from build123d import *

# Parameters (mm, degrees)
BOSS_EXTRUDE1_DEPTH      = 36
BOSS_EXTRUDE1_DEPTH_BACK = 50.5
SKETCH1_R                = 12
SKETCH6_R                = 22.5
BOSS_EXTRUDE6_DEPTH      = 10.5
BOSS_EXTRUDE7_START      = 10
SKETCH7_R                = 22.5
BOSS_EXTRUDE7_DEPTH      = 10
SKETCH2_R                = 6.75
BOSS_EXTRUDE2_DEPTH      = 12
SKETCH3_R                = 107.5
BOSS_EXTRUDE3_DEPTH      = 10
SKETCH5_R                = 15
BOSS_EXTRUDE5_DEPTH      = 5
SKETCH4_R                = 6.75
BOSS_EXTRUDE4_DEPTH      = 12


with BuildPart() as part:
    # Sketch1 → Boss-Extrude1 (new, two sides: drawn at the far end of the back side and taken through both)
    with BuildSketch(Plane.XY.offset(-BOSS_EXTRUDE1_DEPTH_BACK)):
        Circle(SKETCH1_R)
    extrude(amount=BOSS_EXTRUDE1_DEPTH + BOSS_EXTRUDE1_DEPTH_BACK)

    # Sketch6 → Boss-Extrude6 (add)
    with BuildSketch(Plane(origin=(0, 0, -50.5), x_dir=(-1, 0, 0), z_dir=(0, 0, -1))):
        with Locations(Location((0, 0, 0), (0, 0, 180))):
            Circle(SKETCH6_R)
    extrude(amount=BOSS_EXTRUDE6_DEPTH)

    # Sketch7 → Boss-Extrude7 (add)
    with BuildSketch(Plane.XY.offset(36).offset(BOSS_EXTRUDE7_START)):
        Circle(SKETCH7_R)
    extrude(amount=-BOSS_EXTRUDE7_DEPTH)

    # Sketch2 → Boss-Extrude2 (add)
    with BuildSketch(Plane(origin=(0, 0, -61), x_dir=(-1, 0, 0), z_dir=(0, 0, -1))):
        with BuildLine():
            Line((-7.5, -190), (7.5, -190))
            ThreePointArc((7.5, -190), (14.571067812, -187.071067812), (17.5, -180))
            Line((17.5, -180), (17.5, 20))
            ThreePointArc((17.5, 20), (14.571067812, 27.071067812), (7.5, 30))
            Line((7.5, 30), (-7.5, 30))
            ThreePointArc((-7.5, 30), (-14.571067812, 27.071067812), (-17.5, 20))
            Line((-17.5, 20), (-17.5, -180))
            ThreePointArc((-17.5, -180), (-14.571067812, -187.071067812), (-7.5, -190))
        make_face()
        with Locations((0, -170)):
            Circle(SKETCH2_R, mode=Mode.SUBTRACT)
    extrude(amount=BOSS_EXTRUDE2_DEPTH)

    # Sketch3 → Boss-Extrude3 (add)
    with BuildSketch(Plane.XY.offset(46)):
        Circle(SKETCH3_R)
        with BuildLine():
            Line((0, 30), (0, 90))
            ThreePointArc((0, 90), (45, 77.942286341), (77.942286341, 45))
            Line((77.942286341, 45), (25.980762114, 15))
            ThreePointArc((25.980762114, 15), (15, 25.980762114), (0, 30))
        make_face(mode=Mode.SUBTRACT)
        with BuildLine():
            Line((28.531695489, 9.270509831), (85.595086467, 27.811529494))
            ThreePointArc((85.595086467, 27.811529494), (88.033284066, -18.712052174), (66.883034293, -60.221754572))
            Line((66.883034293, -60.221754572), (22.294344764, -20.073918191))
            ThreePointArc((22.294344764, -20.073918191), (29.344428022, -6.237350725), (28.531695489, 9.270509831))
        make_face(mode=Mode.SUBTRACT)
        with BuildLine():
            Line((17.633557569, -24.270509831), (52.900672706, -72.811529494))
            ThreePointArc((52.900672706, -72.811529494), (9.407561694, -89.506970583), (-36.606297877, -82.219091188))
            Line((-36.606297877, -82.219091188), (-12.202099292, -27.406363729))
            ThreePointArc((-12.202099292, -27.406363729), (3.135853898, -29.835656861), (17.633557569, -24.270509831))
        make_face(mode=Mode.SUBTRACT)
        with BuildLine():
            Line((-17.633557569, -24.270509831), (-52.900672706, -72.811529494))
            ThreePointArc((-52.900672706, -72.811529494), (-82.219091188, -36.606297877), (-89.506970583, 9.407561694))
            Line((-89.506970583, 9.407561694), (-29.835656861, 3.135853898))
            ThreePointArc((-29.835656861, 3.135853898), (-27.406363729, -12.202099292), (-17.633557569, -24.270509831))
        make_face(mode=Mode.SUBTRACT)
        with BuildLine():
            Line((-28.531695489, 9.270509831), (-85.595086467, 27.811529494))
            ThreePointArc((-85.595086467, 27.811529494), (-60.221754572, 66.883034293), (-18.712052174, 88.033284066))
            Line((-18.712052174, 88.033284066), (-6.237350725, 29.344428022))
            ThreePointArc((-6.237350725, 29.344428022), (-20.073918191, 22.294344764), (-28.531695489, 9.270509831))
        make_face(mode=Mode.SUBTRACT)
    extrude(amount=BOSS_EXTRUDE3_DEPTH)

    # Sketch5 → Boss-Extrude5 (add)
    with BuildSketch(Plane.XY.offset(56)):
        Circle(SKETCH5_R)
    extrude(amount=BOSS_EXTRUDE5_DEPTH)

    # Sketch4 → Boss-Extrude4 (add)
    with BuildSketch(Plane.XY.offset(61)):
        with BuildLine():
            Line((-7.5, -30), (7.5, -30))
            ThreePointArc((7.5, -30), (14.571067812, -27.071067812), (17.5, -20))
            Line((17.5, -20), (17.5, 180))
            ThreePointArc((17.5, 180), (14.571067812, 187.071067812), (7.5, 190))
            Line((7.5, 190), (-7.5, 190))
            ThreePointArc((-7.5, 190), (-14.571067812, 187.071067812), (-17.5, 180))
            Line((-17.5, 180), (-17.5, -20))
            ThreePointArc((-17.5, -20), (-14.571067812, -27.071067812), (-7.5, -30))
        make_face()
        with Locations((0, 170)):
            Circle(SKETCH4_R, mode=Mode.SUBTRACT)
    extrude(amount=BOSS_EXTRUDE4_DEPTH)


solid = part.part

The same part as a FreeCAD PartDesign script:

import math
import FreeCAD as App
import Part
import Sketcher
from FreeCAD import Vector
Q = App.Units.Quantity

doc = App.newDocument("Part")
body = doc.addObject("PartDesign::Body", "Body")

sketch1 = body.newObject("Sketcher::SketchObject", "Sketch")
sketch1.AttachmentSupport = (doc.getObject("XY_Plane"), [""])
sketch1.MapMode = "FlatFace"
sketch1.addGeometry(Part.Circle(Vector(0, 0, 0), Vector(0, 0, 1), 12), False)
sketch1.addConstraint([
    Sketcher.Constraint("Coincident", 0, 3, -1, 1),
    Sketcher.Constraint("Diameter", 0, 24.0),
])
pad1 = body.newObject("PartDesign::Pad", "Pad")
pad1.Profile = sketch1
pad1.Type = "TwoLengths"
pad1.Length = 36
pad1.Length2 = 50.5

sketch2 = body.newObject("Sketcher::SketchObject", "Sketch001")
sketch2.AttachmentSupport = (doc.getObject("XY_Plane"), [""])
sketch2.MapMode = "FlatFace"
sketch2.AttachmentOffset = App.Placement(Vector(0, 0, -50.5), App.Rotation())
sketch2.addGeometry(Part.Circle(Vector(0, 0, 0), Vector(0, 0, 1), 22), False)
sketch2.addConstraint([
    Sketcher.Constraint("Coincident", 0, 3, -1, 1),
    Sketcher.Constraint("Diameter", 0, 45.0),
])
pad2 = body.newObject("PartDesign::Pad", "Pad001")
pad2.Profile = sketch2
pad2.Length = 10.5
pad2.Reversed = True

sketch3 = body.newObject("Sketcher::SketchObject", "Sketch002")
sketch3.AttachmentSupport = (doc.getObject("XY_Plane"), [""])
sketch3.MapMode = "FlatFace"
sketch3.AttachmentOffset = App.Placement(Vector(0, 0, 46), App.Rotation())
sketch3.addGeometry(Part.Circle(Vector(0, 0, 0), Vector(0, 0, 1), 22), False)
sketch3.addConstraint([
    Sketcher.Constraint("Coincident", 0, 3, -1, 1),
    Sketcher.Constraint("Diameter", 0, 45.0),
])
pad3 = body.newObject("PartDesign::Pad", "Pad002")
pad3.Profile = sketch3
pad3.Length = 10
pad3.Reversed = True

sketch4 = body.newObject("Sketcher::SketchObject", "Sketch003")
sketch4.AttachmentSupport = (doc.getObject("XY_Plane"), [""])
sketch4.MapMode = "FlatFace"
sketch4.AttachmentOffset = App.Placement(Vector(0, 0, -61), App.Rotation())
sketch4.addGeometry([
    Part.LineSegment(Vector(8, -190, 0), Vector(-8, -190, 0)),
    Part.ArcOfCircle(Part.Circle(Vector(-8, -180, 0), Vector(0, 0, 1), 10), math.radians(180), math.radians(270)),
    Part.LineSegment(Vector(-18, -180, 0), Vector(-18, 20, 0)),
    Part.ArcOfCircle(Part.Circle(Vector(-8, 20, 0), Vector(0, 0, 1), 10), math.radians(90), math.radians(180)),
    Part.LineSegment(Vector(-8, 30, 0), Vector(8, 30, 0)),
    Part.ArcOfCircle(Part.Circle(Vector(8, 20, 0), Vector(0, 0, 1), 10), math.radians(0), math.radians(90)),
    Part.LineSegment(Vector(18, 20, 0), Vector(18, -180, 0)),
    Part.ArcOfCircle(Part.Circle(Vector(8, -180, 0), Vector(0, 0, 1), 10), math.radians(-90), math.radians(0)),
    Part.Circle(Vector(0, -170, 0), Vector(0, 0, 1), 7),
], False)
sketch4.addConstraint([
    Sketcher.Constraint("Tangent", 0, 2, 1, 2),
    Sketcher.Constraint("Tangent", 1, 1, 2, 1),
    Sketcher.Constraint("Tangent", 2, 2, 3, 2),
    Sketcher.Constraint("Tangent", 3, 1, 4, 1),
    Sketcher.Constraint("Tangent", 4, 2, 5, 2),
    Sketcher.Constraint("Tangent", 5, 1, 6, 1),
    Sketcher.Constraint("Tangent", 6, 2, 7, 2),
    Sketcher.Constraint("Tangent", 7, 1, 0, 1),
    Sketcher.Constraint("Horizontal", 0),
    Sketcher.Constraint("Vertical", 2),
    Sketcher.Constraint("Horizontal", 4),
    Sketcher.Constraint("Vertical", 6),
    Sketcher.Constraint("Equal", 1, 3),
    Sketcher.Constraint("Equal", 3, 5),
    Sketcher.Constraint("Equal", 5, 7),
    Sketcher.Constraint("PointOnObject", 8, 3, -2),
    Sketcher.Constraint("Radius", 1, 10.0),
    Sketcher.Constraint("Diameter", 8, 13.5),
    Sketcher.Constraint("DistanceX", 0, 2, 0, 1, 15.0),
    Sketcher.Constraint("DistanceY", 2, 1, 2, 2, 200.0),
    Sketcher.Constraint("DistanceY", 1, 3, -1, 1, 180.0),
    Sketcher.Constraint("DistanceY", 8, 3, -1, 1, 170.0),
    Sketcher.Constraint("DistanceX", 1, 3, -1, 1, 7.5),
])
pad4 = body.newObject("PartDesign::Pad", "Pad003")
pad4.Profile = sketch4
pad4.Length = 12
pad4.Reversed = True

sketch5 = body.newObject("Sketcher::SketchObject", "Sketch004")
sketch5.AttachmentSupport = (doc.getObject("XY_Plane"), [""])
sketch5.MapMode = "FlatFace"
sketch5.AttachmentOffset = App.Placement(Vector(0, 0, 46), App.Rotation())
sketch5.addGeometry([
    Part.Circle(Vector(0, 0, 0), Vector(0, 0, 1), 108),
    Part.ArcOfCircle(Part.Circle(Vector(0, 0, 0), Vector(0, 0, 1), 30), math.radians(174), math.radians(234)),
    Part.LineSegment(Vector(-18, -24, 0), Vector(-53, -73, 0)),
    Part.ArcOfCircle(Part.Circle(Vector(0, 0, 0), Vector(0, 0, 1), 90), math.radians(174), math.radians(234)),
    Part.LineSegment(Vector(-90, 9, 0), Vector(-30, 3, 0)),
    Part.ArcOfCircle(Part.Circle(Vector(0, 0, 0), Vector(0, 0, 1), 30), math.radians(-114), math.radians(-54)),
    Part.LineSegment(Vector(18, -24, 0), Vector(53, -73, 0)),
    Part.ArcOfCircle(Part.Circle(Vector(0, 0, 0), Vector(0, 0, 1), 90), math.radians(-114), math.radians(-54)),
    Part.LineSegment(Vector(-37, -82, 0), Vector(-12, -27, 0)),
    Part.ArcOfCircle(Part.Circle(Vector(0, 0, 0), Vector(0, 0, 1), 30), math.radians(-42), math.radians(18)),
    Part.LineSegment(Vector(29, 9, 0), Vector(86, 28, 0)),
    Part.ArcOfCircle(Part.Circle(Vector(0, 0, 0), Vector(0, 0, 1), 90), math.radians(-42), math.radians(18)),
    Part.LineSegment(Vector(67, -60, 0), Vector(22, -20, 0)),
    Part.ArcOfCircle(Part.Circle(Vector(0, 0, 0), Vector(0, 0, 1), 30), math.radians(102), math.radians(162)),
    Part.LineSegment(Vector(-29, 9, 0), Vector(-86, 28, 0)),
    Part.ArcOfCircle(Part.Circle(Vector(0, 0, 0), Vector(0, 0, 1), 90), math.radians(102), math.radians(162)),
    Part.LineSegment(Vector(-19, 88, 0), Vector(-6, 29, 0)),
    Part.ArcOfCircle(Part.Circle(Vector(0, 0, 0), Vector(0, 0, 1), 30), math.radians(30), math.radians(90)),
    Part.LineSegment(Vector(0, 30, 0), Vector(0, 90, 0)),
    Part.ArcOfCircle(Part.Circle(Vector(0, 0, 0), Vector(0, 0, 1), 90), math.radians(30), math.radians(90)),
    Part.LineSegment(Vector(78, 45, 0), Vector(26, 15, 0)),
], False)
sketch5.addConstraint([
    Sketcher.Constraint("Coincident", 1, 2, 2, 1),
    Sketcher.Constraint("Coincident", 2, 2, 3, 2),
    Sketcher.Constraint("Coincident", 3, 1, 4, 1),
    Sketcher.Constraint("Coincident", 4, 2, 1, 1),
    Sketcher.Constraint("Coincident", 5, 2, 6, 1),
    Sketcher.Constraint("Coincident", 6, 2, 7, 2),
    Sketcher.Constraint("Coincident", 7, 1, 8, 1),
    Sketcher.Constraint("Coincident", 8, 2, 5, 1),
    Sketcher.Constraint("Coincident", 9, 2, 10, 1),
    Sketcher.Constraint("Coincident", 10, 2, 11, 2),
    Sketcher.Constraint("Coincident", 11, 1, 12, 1),
    Sketcher.Constraint("Coincident", 12, 2, 9, 1),
    Sketcher.Constraint("Coincident", 13, 2, 14, 1),
    Sketcher.Constraint("Coincident", 14, 2, 15, 2),
    Sketcher.Constraint("Coincident", 15, 1, 16, 1),
    Sketcher.Constraint("Coincident", 16, 2, 13, 1),
    Sketcher.Constraint("Coincident", 17, 2, 18, 1),
    Sketcher.Constraint("Coincident", 18, 2, 19, 2),
    Sketcher.Constraint("Coincident", 19, 1, 20, 1),
    Sketcher.Constraint("Coincident", 20, 2, 17, 1),
    Sketcher.Constraint("Vertical", 18),
    Sketcher.Constraint("Coincident", 0, 3, -1, 1),
    Sketcher.Constraint("Coincident", 1, 3, -1, 1),
    Sketcher.Constraint("Coincident", 3, 3, -1, 1),
    Sketcher.Constraint("Coincident", 5, 3, -1, 1),
    Sketcher.Constraint("Coincident", 7, 3, -1, 1),
    Sketcher.Constraint("Coincident", 9, 3, -1, 1),
    Sketcher.Constraint("Coincident", 11, 3, -1, 1),
    Sketcher.Constraint("Coincident", 13, 3, -1, 1),
    Sketcher.Constraint("Coincident", 15, 3, -1, 1),
    Sketcher.Constraint("Coincident", 17, 3, -1, 1),
    Sketcher.Constraint("Coincident", 19, 3, -1, 1),
    Sketcher.Constraint("Equal", 1, 5),
    Sketcher.Constraint("Equal", 3, 7),
    Sketcher.Constraint("Equal", 5, 9),
    Sketcher.Constraint("Equal", 7, 11),
    Sketcher.Constraint("Equal", 9, 13),
    Sketcher.Constraint("Equal", 11, 15),
    Sketcher.Constraint("Equal", 13, 17),
    Sketcher.Constraint("Equal", 15, 19),
    Sketcher.Constraint("PointOnObject", 17, 2, -2),
    Sketcher.Constraint("Horizontal", 1, 2, 5, 2),
    Sketcher.Constraint("Horizontal", 2, 2, 6, 2),
    Sketcher.Constraint("Horizontal", 9, 2, 13, 2),
    Sketcher.Constraint("Horizontal", 10, 2, 14, 2),
    Sketcher.Constraint("Diameter", 0, 215.0),
    Sketcher.Constraint("Radius", 1, 30.0),
    Sketcher.Constraint("Radius", 3, 90.0),
    Sketcher.Constraint("Angle", 2, Q("-126 deg")),
    Sketcher.Constraint("Angle", 4, Q("-6 deg")),
    Sketcher.Constraint("Angle", 8, Q("66 deg")),
    Sketcher.Constraint("Angle", 10, Q("18 deg")),
    Sketcher.Constraint("Angle", 12, Q("138 deg")),
    Sketcher.Constraint("Angle", 16, Q("-78 deg")),
    Sketcher.Constraint("Angle", 20, Q("-150 deg")),
    Sketcher.Constraint("DistanceY", -1, 1, 19, 1, 45.0),
    Sketcher.Constraint("DistanceX", 8, 2, -1, 1, 12.202099),
    Sketcher.Constraint("DistanceX", 4, 2, 1, 2, 12.202099),
    Sketcher.Constraint("DistanceX", 19, 1, 10, 2, 7.6528),
    Sketcher.Constraint("DistanceY", 1, 2, -1, 1, 24.27051),
    Sketcher.Constraint("DistanceY", 12, 2, -1, 1, 20.073918),
    Sketcher.Constraint("DistanceX", 16, 2, -1, 1, 6.237351),
])
pad5 = body.newObject("PartDesign::Pad", "Pad004")
pad5.Profile = sketch5
pad5.Length = 10

sketch6 = body.newObject("Sketcher::SketchObject", "Sketch005")
sketch6.AttachmentSupport = (doc.getObject("XY_Plane"), [""])
sketch6.MapMode = "FlatFace"
sketch6.AttachmentOffset = App.Placement(Vector(0, 0, 56), App.Rotation())
sketch6.addGeometry(Part.Circle(Vector(0, 0, 0), Vector(0, 0, 1), 15), False)
sketch6.addConstraint([
    Sketcher.Constraint("Coincident", 0, 3, -1, 1),
    Sketcher.Constraint("Diameter", 0, 30.0),
])
pad6 = body.newObject("PartDesign::Pad", "Pad005")
pad6.Profile = sketch6
pad6.Length = 5

sketch7 = body.newObject("Sketcher::SketchObject", "Sketch006")
sketch7.AttachmentSupport = (doc.getObject("XY_Plane"), [""])
sketch7.MapMode = "FlatFace"
sketch7.AttachmentOffset = App.Placement(Vector(0, 0, 61), App.Rotation())
sketch7.addGeometry([
    Part.LineSegment(Vector(-8, -30, 0), Vector(8, -30, 0)),
    Part.ArcOfCircle(Part.Circle(Vector(8, -20, 0), Vector(0, 0, 1), 10), math.radians(-90), math.radians(0)),
    Part.LineSegment(Vector(18, -20, 0), Vector(18, 180, 0)),
    Part.ArcOfCircle(Part.Circle(Vector(8, 180, 0), Vector(0, 0, 1), 10), math.radians(0), math.radians(90)),
    Part.LineSegment(Vector(8, 190, 0), Vector(-8, 190, 0)),
    Part.ArcOfCircle(Part.Circle(Vector(-8, 180, 0), Vector(0, 0, 1), 10), math.radians(90), math.radians(180)),
    Part.LineSegment(Vector(-18, 180, 0), Vector(-18, -20, 0)),
    Part.ArcOfCircle(Part.Circle(Vector(-8, -20, 0), Vector(0, 0, 1), 10), math.radians(180), math.radians(270)),
    Part.Circle(Vector(0, 170, 0), Vector(0, 0, 1), 7),
], False)
sketch7.addConstraint([
    Sketcher.Constraint("Tangent", 0, 2, 1, 1),
    Sketcher.Constraint("Tangent", 1, 2, 2, 1),
    Sketcher.Constraint("Tangent", 2, 2, 3, 1),
    Sketcher.Constraint("Tangent", 3, 2, 4, 1),
    Sketcher.Constraint("Tangent", 4, 2, 5, 1),
    Sketcher.Constraint("Tangent", 5, 2, 6, 1),
    Sketcher.Constraint("Tangent", 6, 2, 7, 1),
    Sketcher.Constraint("Tangent", 7, 2, 0, 1),
    Sketcher.Constraint("Horizontal", 0),
    Sketcher.Constraint("Vertical", 2),
    Sketcher.Constraint("Horizontal", 4),
    Sketcher.Constraint("Vertical", 6),
    Sketcher.Constraint("Equal", 1, 3),
    Sketcher.Constraint("Equal", 3, 5),
    Sketcher.Constraint("Equal", 5, 7),
    Sketcher.Constraint("PointOnObject", 8, 3, -2),
    Sketcher.Constraint("Radius", 1, 10.0),
    Sketcher.Constraint("Diameter", 8, 13.5),
    Sketcher.Constraint("DistanceX", 0, 1, 0, 2, 15.0),
    Sketcher.Constraint("DistanceY", 2, 1, 2, 2, 200.0),
    Sketcher.Constraint("DistanceY", 1, 3, -1, 1, 20.0),
    Sketcher.Constraint("DistanceY", -1, 1, 8, 3, 170.0),
    Sketcher.Constraint("DistanceX", -1, 1, 1, 3, 7.5),
])
pad7 = body.newObject("PartDesign::Pad", "Pad006")
pad7.Profile = sketch7
pad7.Length = 12

doc.recompute()
